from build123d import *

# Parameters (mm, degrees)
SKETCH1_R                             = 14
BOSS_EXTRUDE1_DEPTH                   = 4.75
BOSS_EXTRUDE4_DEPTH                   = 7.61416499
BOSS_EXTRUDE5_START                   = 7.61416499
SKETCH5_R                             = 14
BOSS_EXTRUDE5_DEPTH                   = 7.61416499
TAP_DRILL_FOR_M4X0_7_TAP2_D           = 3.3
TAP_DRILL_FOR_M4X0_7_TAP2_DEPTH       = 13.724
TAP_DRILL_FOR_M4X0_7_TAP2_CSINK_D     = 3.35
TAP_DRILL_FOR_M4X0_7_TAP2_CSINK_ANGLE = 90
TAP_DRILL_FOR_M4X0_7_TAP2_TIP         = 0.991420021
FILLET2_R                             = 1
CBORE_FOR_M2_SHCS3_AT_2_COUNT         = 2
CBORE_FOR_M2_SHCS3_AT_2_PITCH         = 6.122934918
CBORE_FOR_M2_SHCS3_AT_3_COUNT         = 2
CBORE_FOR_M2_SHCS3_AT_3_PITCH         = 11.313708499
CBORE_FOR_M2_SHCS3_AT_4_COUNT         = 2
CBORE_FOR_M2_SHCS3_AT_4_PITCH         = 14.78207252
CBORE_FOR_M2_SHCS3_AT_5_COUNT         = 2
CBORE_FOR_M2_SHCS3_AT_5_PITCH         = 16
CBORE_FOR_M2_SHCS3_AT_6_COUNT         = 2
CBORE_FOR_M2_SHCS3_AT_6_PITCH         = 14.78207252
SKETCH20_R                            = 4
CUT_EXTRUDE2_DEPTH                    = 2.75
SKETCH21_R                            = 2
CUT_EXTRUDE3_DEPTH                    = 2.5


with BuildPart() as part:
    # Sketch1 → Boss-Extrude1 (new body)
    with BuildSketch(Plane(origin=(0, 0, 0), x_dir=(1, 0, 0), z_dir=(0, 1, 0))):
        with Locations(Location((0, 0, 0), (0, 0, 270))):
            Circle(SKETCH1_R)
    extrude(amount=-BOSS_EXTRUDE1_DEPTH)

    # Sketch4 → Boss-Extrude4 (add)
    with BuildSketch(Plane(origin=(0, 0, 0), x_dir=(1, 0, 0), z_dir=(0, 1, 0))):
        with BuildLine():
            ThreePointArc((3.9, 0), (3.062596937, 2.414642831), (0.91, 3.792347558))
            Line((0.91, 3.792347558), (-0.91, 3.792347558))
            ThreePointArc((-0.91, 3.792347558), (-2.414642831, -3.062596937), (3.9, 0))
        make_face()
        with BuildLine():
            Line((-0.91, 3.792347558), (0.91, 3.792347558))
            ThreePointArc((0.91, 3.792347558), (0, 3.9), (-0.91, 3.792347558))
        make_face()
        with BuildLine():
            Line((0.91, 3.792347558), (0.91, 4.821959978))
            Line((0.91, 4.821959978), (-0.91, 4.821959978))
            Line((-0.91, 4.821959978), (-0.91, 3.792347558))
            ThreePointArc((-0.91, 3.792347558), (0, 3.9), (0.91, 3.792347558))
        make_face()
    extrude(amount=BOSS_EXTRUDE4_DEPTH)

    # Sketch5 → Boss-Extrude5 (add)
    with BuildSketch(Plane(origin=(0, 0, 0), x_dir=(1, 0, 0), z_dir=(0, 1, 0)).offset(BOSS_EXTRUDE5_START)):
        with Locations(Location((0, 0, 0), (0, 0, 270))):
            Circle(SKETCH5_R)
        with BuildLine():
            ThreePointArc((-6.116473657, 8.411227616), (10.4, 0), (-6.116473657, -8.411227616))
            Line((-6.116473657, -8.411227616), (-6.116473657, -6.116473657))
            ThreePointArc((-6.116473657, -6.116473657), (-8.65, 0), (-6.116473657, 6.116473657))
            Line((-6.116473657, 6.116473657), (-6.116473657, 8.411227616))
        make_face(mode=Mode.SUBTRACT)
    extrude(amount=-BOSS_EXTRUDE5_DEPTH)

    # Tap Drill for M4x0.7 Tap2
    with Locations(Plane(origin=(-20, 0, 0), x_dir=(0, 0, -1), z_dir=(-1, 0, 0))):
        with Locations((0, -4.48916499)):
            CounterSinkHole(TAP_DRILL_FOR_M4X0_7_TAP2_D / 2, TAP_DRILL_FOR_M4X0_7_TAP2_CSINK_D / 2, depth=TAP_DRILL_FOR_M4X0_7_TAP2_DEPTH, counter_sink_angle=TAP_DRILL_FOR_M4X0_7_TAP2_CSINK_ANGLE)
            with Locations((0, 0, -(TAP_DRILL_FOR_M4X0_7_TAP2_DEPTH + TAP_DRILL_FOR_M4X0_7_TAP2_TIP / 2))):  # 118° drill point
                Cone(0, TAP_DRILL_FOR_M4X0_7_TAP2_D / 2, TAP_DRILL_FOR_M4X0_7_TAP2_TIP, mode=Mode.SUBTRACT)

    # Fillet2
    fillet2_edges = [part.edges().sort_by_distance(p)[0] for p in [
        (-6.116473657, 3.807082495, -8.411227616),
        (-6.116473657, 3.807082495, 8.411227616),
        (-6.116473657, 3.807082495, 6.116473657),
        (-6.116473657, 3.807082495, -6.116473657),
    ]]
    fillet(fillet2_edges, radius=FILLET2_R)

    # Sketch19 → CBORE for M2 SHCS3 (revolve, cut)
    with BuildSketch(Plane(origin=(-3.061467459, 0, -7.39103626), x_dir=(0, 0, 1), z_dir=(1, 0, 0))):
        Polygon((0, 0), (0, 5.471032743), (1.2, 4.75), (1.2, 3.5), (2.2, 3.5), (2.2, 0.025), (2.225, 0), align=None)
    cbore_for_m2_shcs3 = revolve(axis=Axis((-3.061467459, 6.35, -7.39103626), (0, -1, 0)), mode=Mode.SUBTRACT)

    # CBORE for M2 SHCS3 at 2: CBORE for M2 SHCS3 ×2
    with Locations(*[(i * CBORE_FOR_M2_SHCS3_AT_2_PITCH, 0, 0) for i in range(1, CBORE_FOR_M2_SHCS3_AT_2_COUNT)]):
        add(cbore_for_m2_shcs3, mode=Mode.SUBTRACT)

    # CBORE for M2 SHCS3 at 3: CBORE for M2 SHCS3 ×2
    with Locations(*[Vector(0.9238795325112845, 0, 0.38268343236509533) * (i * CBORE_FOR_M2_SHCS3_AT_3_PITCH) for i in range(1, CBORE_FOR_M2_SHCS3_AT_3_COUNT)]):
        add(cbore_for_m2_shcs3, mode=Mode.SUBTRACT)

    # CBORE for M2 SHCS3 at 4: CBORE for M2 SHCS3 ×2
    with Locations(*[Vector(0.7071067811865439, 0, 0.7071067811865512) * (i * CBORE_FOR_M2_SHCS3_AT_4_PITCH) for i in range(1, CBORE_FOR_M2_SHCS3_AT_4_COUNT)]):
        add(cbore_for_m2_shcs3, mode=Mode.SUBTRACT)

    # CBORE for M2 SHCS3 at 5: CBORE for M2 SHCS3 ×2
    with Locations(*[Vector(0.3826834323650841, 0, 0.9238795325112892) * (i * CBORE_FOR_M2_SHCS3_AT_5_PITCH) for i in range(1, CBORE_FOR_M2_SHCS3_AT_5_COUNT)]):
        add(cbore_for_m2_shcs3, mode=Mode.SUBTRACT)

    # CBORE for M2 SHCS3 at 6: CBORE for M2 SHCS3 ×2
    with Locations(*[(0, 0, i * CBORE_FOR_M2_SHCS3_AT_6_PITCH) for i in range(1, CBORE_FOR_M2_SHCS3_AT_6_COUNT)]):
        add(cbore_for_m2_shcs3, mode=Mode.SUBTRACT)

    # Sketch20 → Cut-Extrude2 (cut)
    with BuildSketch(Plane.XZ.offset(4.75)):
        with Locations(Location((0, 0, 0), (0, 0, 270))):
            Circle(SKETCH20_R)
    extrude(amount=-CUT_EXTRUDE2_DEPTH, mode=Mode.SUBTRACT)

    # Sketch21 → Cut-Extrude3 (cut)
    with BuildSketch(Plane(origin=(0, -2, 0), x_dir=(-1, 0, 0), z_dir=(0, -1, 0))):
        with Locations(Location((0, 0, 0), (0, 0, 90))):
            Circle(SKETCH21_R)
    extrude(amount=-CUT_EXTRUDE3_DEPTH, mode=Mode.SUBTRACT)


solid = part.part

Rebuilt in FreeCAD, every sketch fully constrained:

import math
import FreeCAD as App
import Part
import Sketcher
from FreeCAD import Vector
Q = App.Units.Quantity


def edges_at(feature, points):
    """Names of the edges that pass closest to the given points."""
    edges = feature.Shape.Edges
    near = lambda p: min(range(len(edges)), key=lambda i: edges[i].distToShape(Part.Vertex(*p))[0])
    return sorted({f"Edge{near(p) + 1}" for p in points})

doc = App.newDocument("Part")
body = doc.addObject("PartDesign::Body", "Body")

# Sketch on XZ plane
sketch1 = doc.addObject("Sketcher::SketchObject", "Sketch")
body.addObject(sketch1)
sketch1.AttachmentSupport = (doc.XZ_Plane, [""])
sketch1.MapMode = "FlatFace"
sketch1.addGeometry(Part.Circle(Vector(0, 0, 0), Vector(0, 0, 1), 14), False)
sketch1.addConstraint([
    Sketcher.Constraint("Coincident", 0, 3, -1, 1),
    Sketcher.Constraint("Diameter", 0, 28.0),
])
pad1 = doc.addObject("PartDesign::Pad", "Pad")
body.addObject(pad1)
pad1.Profile = sketch1
pad1.Length = 4.75

# Sketch on XZ plane
sketch2 = doc.addObject("Sketcher::SketchObject", "Sketch001")
body.addObject(sketch2)
sketch2.AttachmentSupport = (doc.XZ_Plane, [""])
sketch2.MapMode = "FlatFace"
sketch2.addGeometry([
    Part.ArcOfCircle(Part.Circle(Vector(0, 0, 0), Vector(0, 0, 1), 3.9), math.radians(-77), math.radians(0)),  # 0
    Part.LineSegment(Vector(0.9, -3.8, 0), Vector(0.9, -4.8, 0)),  # 1
    Part.LineSegment(Vector(0.9, -4.8, 0), Vector(-0.9, -4.8, 0)),  # 2
    Part.LineSegment(Vector(-0.9, -4.8, 0), Vector(-0.9, -3.8, 0)),  # 3
    Part.ArcOfCircle(Part.Circle(Vector(0, 0, 0), Vector(0, 0, 1), 3.9), math.radians(0), math.radians(257)),  # 4
], False)
sketch2.addConstraint([
    Sketcher.Constraint("Coincident", 0, 1, 1, 1),
    Sketcher.Constraint("Coincident", 1, 2, 2, 1),
    Sketcher.Constraint("Coincident", 2, 2, 3, 1),
    Sketcher.Constraint("Coincident", 3, 2, 4, 2),
    Sketcher.Constraint("Tangent", 4, 1, 0, 2),
    Sketcher.Constraint("Vertical", 1),
    Sketcher.Constraint("Horizontal", 2),
    Sketcher.Constraint("Vertical", 3),
    Sketcher.Constraint("Coincident", 0, 3, -1, 1),
    Sketcher.Constraint("Equal", 0, 4),
    Sketcher.Constraint("PointOnObject", 4, 1, -1),
    Sketcher.Constraint("Horizontal", 0, 1, 3, 2),
    Sketcher.Constraint("Radius", 0, 3.9),
    Sketcher.Constraint("DistanceX", 2, 2, 2, 1, 1.82),
    Sketcher.Constraint("DistanceY", 1, 2, 1, 1, 1.029612),
])
pad2 = doc.addObject("PartDesign::Pad", "Pad001")
body.addObject(pad2)
pad2.Profile = sketch2
pad2.Length = 7.614165
pad2.Reversed = True

# Sketch on XZ plane
sketch3 = doc.addObject("Sketcher::SketchObject", "Sketch002")
body.addObject(sketch3)
sketch3.AttachmentSupport = (doc.XZ_Plane, [""])
sketch3.MapMode = "FlatFace"
sketch3.AttachmentOffset = App.Placement(Vector(0, 0, -7.614165), App.Rotation())
sketch3.addGeometry([
    Part.Circle(Vector(0, 0, 0), Vector(0, 0, 1), 14),  # 0
    Part.LineSegment(Vector(-6.1, -6.1, 0), Vector(-6.1, -8.4, 0)),  # 1
    Part.ArcOfCircle(Part.Circle(Vector(0, 0, 0), Vector(0, 0, 1), 10.4), math.radians(-126), math.radians(126)),  # 2
    Part.LineSegment(Vector(-6.1, 8.4, 0), Vector(-6.1, 6.1, 0)),  # 3
    Part.ArcOfCircle(Part.Circle(Vector(0, 0, 0), Vector(0, 0, 1), 8.6), math.radians(135), math.radians(225)),  # 4
], False)
sketch3.addConstraint([
    Sketcher.Constraint("Coincident", 1, 2, 2, 1),
    Sketcher.Constraint("Coincident", 2, 2, 3, 1),
    Sketcher.Constraint("Coincident", 3, 2, 4, 1),
    Sketcher.Constraint("Coincident", 4, 2, 1, 1),
    Sketcher.Constraint("Vertical", 1),
    Sketcher.Constraint("Vertical", 3),
    Sketcher.Constraint("Coincident", 0, 3, -1, 1),
    Sketcher.Constraint("Coincident", 2, 3, -1, 1),
    Sketcher.Constraint("Coincident", 4, 3, -1, 1),
    Sketcher.Constraint("Vertical", 1, 2, 2, 2),
    Sketcher.Constraint("Diameter", 0, 28.0),
    Sketcher.Constraint("Radius", 2, 10.4),
    Sketcher.Constraint("Radius", 4, 8.65),
    Sketcher.Constraint("DistanceY", 1, 2, 3, 2, 14.527701),
])
pad3 = doc.addObject("PartDesign::Pad", "Pad002")
body.addObject(pad3)
pad3.Profile = sketch3
pad3.Length = 7.614165

# Sketch on YZ plane
sketch4 = doc.addObject("Sketcher::SketchObject", "Sketch003")
body.addObject(sketch4)
sketch4.AttachmentSupport = (doc.YZ_Plane, [""])
sketch4.MapMode = "FlatFace"
sketch4.AttachmentOffset = App.Placement(Vector(0, 0, -20), App.Rotation())
sketch4.addGeometry(Part.Circle(Vector(4.5, 0, 0), Vector(0, 0, 1), 1.6), False)
sketch4.addConstraint([
    Sketcher.Constraint("PointOnObject", 0, 3, -1),
    Sketcher.Constraint("Diameter", 0, 3.3),
    Sketcher.Constraint("DistanceX", -1, 1, 0, 3, 4.489165),
])
doc.recompute()
hole = doc.addObject("PartDesign::Hole", "Hole")
body.addObject(hole)
hole.Profile = sketch4
hole.ThreadType = "None"
hole.Diameter = 3.3
hole.DepthType = "Dimension"
hole.Depth = 13.724
hole.DrillPoint = "Angled"
hole.DrillPointAngle = 118
hole.HoleCutType = "Countersink"
hole.HoleCutDiameter = 3.35
hole.HoleCutCountersinkAngle = 90
hole.Reversed = True
doc.recompute()

fillet = doc.addObject("PartDesign::Fillet", "Fillet")
body.addObject(fillet)
fillet.Base = (hole, edges_at(hole, [
    (-6.116, 3.807, -8.411),
    (-6.116, 3.807, 8.411),
    (-6.116, 3.807, 6.116),
    (-6.116, 3.807, -6.116),
]))
fillet.Radius = 1

# Sketch on YZ plane
sketch5 = doc.addObject("Sketcher::SketchObject", "Sketch004")
body.addObject(sketch5)
sketch5.AttachmentSupport = (doc.YZ_Plane, [""])
sketch5.MapMode = "FlatFace"
sketch5.AttachmentOffset = App.Placement(Vector(0, 0, -3.061467), App.Rotation())
sketch5.addGeometry([
    Part.LineSegment(Vector(-5.471, -7.391, 0), Vector(0, -7.391, 0)),  # 0
    Part.LineSegment(Vector(0, -7.391, 0), Vector(0, -5.166, 0)),  # 1
    Part.LineSegment(Vector(0, -5.166, 0), Vector(-0.025, -5.191, 0)),  # 2
    Part.LineSegment(Vector(-0.025, -5.191, 0), Vector(-3.5, -5.191, 0)),  # 3
    Part.LineSegment(Vector(-3.5, -5.191, 0), Vector(-3.5, -6.191, 0)),  # 4
    Part.LineSegment(Vector(-3.5, -6.191, 0), Vector(-4.75, -6.191, 0)),  # 5
    Part.LineSegment(Vector(-4.75, -6.191, 0), Vector(-5.471, -7.391, 0)),  # 6
], False)
sketch5.addGeometry(Part.LineSegment(Vector(0, -7.391, 0), Vector(-5.471, -7.391, 0)), True)  # axis
sketch5.addConstraint([
    Sketcher.Constraint("Coincident", 0, 2, 1, 1),
    Sketcher.Constraint("Coincident", 1, 2, 2, 1),
    Sketcher.Constraint("Coincident", 2, 2, 3, 1),
    Sketcher.Constraint("Coincident", 3, 2, 4, 1),
    Sketcher.Constraint("Coincident", 4, 2, 5, 1),
    Sketcher.Constraint("Coincident", 5, 2, 6, 1),
    Sketcher.Constraint("Coincident", 6, 2, 0, 1),
    Sketcher.Constraint("Horizontal", 0),
    Sketcher.Constraint("Vertical", 1),
    Sketcher.Constraint("Horizontal", 3),
    Sketcher.Constraint("Vertical", 4),
    Sketcher.Constraint("Horizontal", 5),
    Sketcher.Constraint("Horizontal", 7),
    Sketcher.Constraint("Coincident", 7, 1, 0, 2),
    Sketcher.Constraint("PointOnObject", 0, 2, -2),
    Sketcher.Constraint("Equal", 0, 7),
    Sketcher.Constraint("DistanceY", 4, 2, 4, 1, 1.0),
    Sketcher.Constraint("Angle", 2, Q("-135 deg")),
    Sketcher.Constraint("Angle", 6, Q("-121 deg")),
    Sketcher.Constraint("DistanceX", 5, 2, 5, 1, 1.25),
    Sketcher.Constraint("DistanceX", 3, 2, -1, 1, 3.5),
    Sketcher.Constraint("DistanceY", 0, 2, 2, 2, 2.2),
    Sketcher.Constraint("DistanceX", 3, 2, 3, 1, 3.475),
    Sketcher.Constraint("DistanceY", 0, 2, -1, 1, 7.391036),
])
groove = doc.addObject("PartDesign::Groove", "Groove")
body.addObject(groove)
groove.Profile = sketch5
groove.ReferenceAxis = (sketch5, ["Axis0"])
groove.Angle = 360
doc.recompute()

linearpattern = doc.addObject("PartDesign::LinearPattern", "LinearPattern")
body.addObject(linearpattern)
linearpattern.Originals = [groove]
linearpattern.Direction = (doc.X_Axis, [""])
linearpattern.Mode = "offset"
linearpattern.Offset = 6.122935
linearpattern.Occurrences = 2
body.Tip = linearpattern
doc.recompute()

datumline = doc.addObject("PartDesign::Line", "DatumLine")
body.addObject(datumline)
datumline.Placement = App.Placement(Vector(0, 0, 0), App.Rotation(Vector(0, 0, 1), Vector(0.923879533, 0, 0.382683432)))
linearpattern2 = doc.addObject("PartDesign::LinearPattern", "LinearPattern001")
body.addObject(linearpattern2)
linearpattern2.Originals = [groove]
linearpattern2.Direction = (datumline, [""])
linearpattern2.Mode = "offset"
linearpattern2.Offset = 11.313708
linearpattern2.Occurrences = 2
body.Tip = linearpattern2
doc.recompute()

datumline2 = doc.addObject("PartDesign::Line", "DatumLine001")
body.addObject(datumline2)
datumline2.Placement = App.Placement(Vector(0, 0, 0), App.Rotation(Vector(0, 0, 1), Vector(0.707106781, 0, 0.707106781)))
linearpattern3 = doc.addObject("PartDesign::LinearPattern", "LinearPattern002")
body.addObject(linearpattern3)
linearpattern3.Originals = [groove]
linearpattern3.Direction = (datumline2, [""])
linearpattern3.Mode = "offset"
linearpattern3.Offset = 14.782073
linearpattern3.Occurrences = 2
body.Tip = linearpattern3
doc.recompute()

datumline3 = doc.addObject("PartDesign::Line", "DatumLine002")
body.addObject(datumline3)
datumline3.Placement = App.Placement(Vector(0, 0, 0), App.Rotation(Vector(0, 0, 1), Vector(0.382683432, 0, 0.923879533)))
linearpattern4 = doc.addObject("PartDesign::LinearPattern", "LinearPattern003")
body.addObject(linearpattern4)
linearpattern4.Originals = [groove]
linearpattern4.Direction = (datumline3, [""])
linearpattern4.Mode = "offset"
linearpattern4.Offset = 16
linearpattern4.Occurrences = 2
body.Tip = linearpattern4
doc.recompute()

linearpattern5 = doc.addObject("PartDesign::LinearPattern", "LinearPattern004")
body.addObject(linearpattern5)
linearpattern5.Originals = [groove]
linearpattern5.Direction = (doc.Z_Axis, [""])
linearpattern5.Mode = "offset"
linearpattern5.Offset = 14.782073
linearpattern5.Occurrences = 2
body.Tip = linearpattern5

# Sketch on XZ plane
sketch6 = doc.addObject("Sketcher::SketchObject", "Sketch005")
body.addObject(sketch6)
sketch6.AttachmentSupport = (doc.XZ_Plane, [""])
sketch6.MapMode = "FlatFace"
sketch6.AttachmentOffset = App.Placement(Vector(0, 0, 4.75), App.Rotation())
sketch6.addGeometry(Part.Circle(Vector(0, 0, 0), Vector(0, 0, 1), 4), False)
sketch6.addConstraint([
    Sketcher.Constraint("Coincident", 0, 3, -1, 1),
    Sketcher.Constraint("Diameter", 0, 8.0),
])
pocket1 = doc.addObject("PartDesign::Pocket", "Pocket")
body.addObject(pocket1)
pocket1.Profile = sketch6
pocket1.Length = 2.75

# Sketch on XZ plane
sketch7 = doc.addObject("Sketcher::SketchObject", "Sketch006")
body.addObject(sketch7)
sketch7.AttachmentSupport = (doc.XZ_Plane, [""])
sketch7.MapMode = "FlatFace"
sketch7.AttachmentOffset = App.Placement(Vector(0, 0, 2), App.Rotation())
sketch7.addGeometry(Part.Circle(Vector(0, 0, 0), Vector(0, 0, 1), 2), False)
sketch7.addConstraint([
    Sketcher.Constraint("Coincident", 0, 3, -1, 1),
    Sketcher.Constraint("Diameter", 0, 4.0),
])
pocket2 = doc.addObject("PartDesign::Pocket", "Pocket001")
body.addObject(pocket2)
pocket2.Profile = sketch7
pocket2.Length = 2.5

doc.recompute()
